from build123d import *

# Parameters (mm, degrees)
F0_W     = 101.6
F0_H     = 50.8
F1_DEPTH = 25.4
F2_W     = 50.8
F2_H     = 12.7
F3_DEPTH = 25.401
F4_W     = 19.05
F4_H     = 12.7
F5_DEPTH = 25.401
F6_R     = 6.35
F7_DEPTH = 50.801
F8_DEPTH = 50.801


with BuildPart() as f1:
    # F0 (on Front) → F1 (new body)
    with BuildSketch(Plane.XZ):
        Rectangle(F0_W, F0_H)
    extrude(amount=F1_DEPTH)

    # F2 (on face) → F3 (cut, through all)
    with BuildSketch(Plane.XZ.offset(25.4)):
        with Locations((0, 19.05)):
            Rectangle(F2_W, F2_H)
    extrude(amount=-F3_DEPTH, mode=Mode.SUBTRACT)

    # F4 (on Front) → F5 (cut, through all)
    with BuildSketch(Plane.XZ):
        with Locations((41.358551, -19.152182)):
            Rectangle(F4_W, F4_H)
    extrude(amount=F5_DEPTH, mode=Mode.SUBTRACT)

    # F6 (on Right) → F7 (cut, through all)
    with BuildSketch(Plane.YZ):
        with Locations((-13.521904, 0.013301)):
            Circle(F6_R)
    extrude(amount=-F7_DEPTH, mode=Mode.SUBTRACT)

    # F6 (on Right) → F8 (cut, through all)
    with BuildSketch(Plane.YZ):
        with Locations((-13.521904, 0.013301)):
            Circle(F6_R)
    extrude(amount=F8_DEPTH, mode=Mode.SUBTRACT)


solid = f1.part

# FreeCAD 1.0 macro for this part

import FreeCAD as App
import Part
import Sketcher
from FreeCAD import Vector
Q = App.Units.Quantity

doc = App.newDocument("Part")
body = doc.addObject("PartDesign::Body", "Body")

# Sketch on XZ plane
sketch1 = body.newObject("Sketcher::SketchObject", "Sketch")
sketch1.AttachmentSupport = (doc.getObject("XZ_Plane"), [""])
sketch1.MapMode = "FlatFace"
sketch1.addGeometry(Part.LineSegment(Vector(-51, 25, 0), Vector(-51, -25, 0)), False)
sketch1.addGeometry(Part.LineSegment(Vector(-51, -25, 0), Vector(51, -25, 0)), False)
sketch1.addGeometry(Part.LineSegment(Vector(51, -25, 0), Vector(51, 25, 0)), False)
sketch1.addGeometry(Part.LineSegment(Vector(51, 25, 0), Vector(-51, 25, 0)), False)
sketch1.addConstraint(Sketcher.Constraint("Coincident", 0, 2, 1, 1))
sketch1.addConstraint(Sketcher.Constraint("Coincident", 1, 2, 2, 1))
sketch1.addConstraint(Sketcher.Constraint("Coincident", 2, 2, 3, 1))
sketch1.addConstraint(Sketcher.Constraint("Coincident", 3, 2, 0, 1))
sketch1.addConstraint(Sketcher.Constraint("Vertical", 0))
sketch1.addConstraint(Sketcher.Constraint("Horizontal", 1))
sketch1.addConstraint(Sketcher.Constraint("Vertical", 2))
sketch1.addConstraint(Sketcher.Constraint("Horizontal", 3))
sketch1.addConstraint(Sketcher.Constraint("Symmetric", 0, 2, 2, 2, -1, 1))
sketch1.addConstraint(Sketcher.Constraint("DistanceX", 1, 1, 1, 2, Q("4 in")))
sketch1.addConstraint(Sketcher.Constraint("DistanceY", 0, 2, 0, 1, Q("2 in")))
pad1 = body.newObject("PartDesign::Pad", "Pad")
pad1.Profile = sketch1
pad1.Length = Q("1 in")

# Sketch on XZ plane
sketch2 = body.newObject("Sketcher::SketchObject", "Sketch001")
sketch2.AttachmentSupport = (doc.getObject("XZ_Plane"), [""])
sketch2.MapMode = "FlatFace"
sketch2.AttachmentOffset = App.Placement(Vector(0, 0, 1 * 25.4), App.Rotation())
sketch2.addGeometry(Part.LineSegment(Vector(-25, 25, 0), Vector(-25, 13, 0)), False)
sketch2.addGeometry(Part.LineSegment(Vector(-25, 13, 0), Vector(25, 13, 0)), False)
sketch2.addGeometry(Part.LineSegment(Vector(25, 13, 0), Vector(25, 25, 0)), False)
sketch2.addGeometry(Part.LineSegment(Vector(25, 25, 0), Vector(-25, 25, 0)), False)
sketch2.addConstraint(Sketcher.Constraint("Coincident", 0, 2, 1, 1))
sketch2.addConstraint(Sketcher.Constraint("Coincident", 1, 2, 2, 1))
sketch2.addConstraint(Sketcher.Constraint("Coincident", 2, 2, 3, 1))
sketch2.addConstraint(Sketcher.Constraint("Coincident", 3, 2, 0, 1))
sketch2.addConstraint(Sketcher.Constraint("Vertical", 0))
sketch2.addConstraint(Sketcher.Constraint("Horizontal", 1))
sketch2.addConstraint(Sketcher.Constraint("Vertical", 2))
sketch2.addConstraint(Sketcher.Constraint("Horizontal", 3))
sketch2.addConstraint(Sketcher.Constraint("DistanceX", 1, 1, 1, 2, Q("2 in")))
sketch2.addConstraint(Sketcher.Constraint("DistanceY", 0, 2, 0, 1, Q("0.5 in")))
sketch2.addConstraint(Sketcher.Constraint("DistanceX", 0, 2, -1, 1, Q("1 in")))
sketch2.addConstraint(Sketcher.Constraint("DistanceY", -1, 1, 2, 2, Q("1 in")))
pocket1 = body.newObject("PartDesign::Pocket", "Pocket")
pocket1.Profile = sketch2
pocket1.Type = "ThroughAll"

# Sketch on XZ plane
sketch3 = body.newObject("Sketcher::SketchObject", "Sketch002")
sketch3.AttachmentSupport = (doc.getObject("XZ_Plane"), [""])
sketch3.MapMode = "FlatFace"
sketch3.addGeometry(Part.LineSegment(Vector(32, -13, 0), Vector(32, -26, 0)), False)
sketch3.addGeometry(Part.LineSegment(Vector(32, -26, 0), Vector(51, -26, 0)), False)
sketch3.addGeometry(Part.LineSegment(Vector(51, -26, 0), Vector(51, -13, 0)), False)
sketch3.addGeometry(Part.LineSegment(Vector(51, -13, 0), Vector(32, -13, 0)), False)
sketch3.addConstraint(Sketcher.Constraint("Coincident", 0, 2, 1, 1))
sketch3.addConstraint(Sketcher.Constraint("Coincident", 1, 2, 2, 1))
sketch3.addConstraint(Sketcher.Constraint("Coincident", 2, 2, 3, 1))
sketch3.addConstraint(Sketcher.Constraint("Coincident", 3, 2, 0, 1))
sketch3.addConstraint(Sketcher.Constraint("Vertical", 0))
sketch3.addConstraint(Sketcher.Constraint("Horizontal", 1))
sketch3.addConstraint(Sketcher.Constraint("Vertical", 2))
sketch3.addConstraint(Sketcher.Constraint("Horizontal", 3))
sketch3.addConstraint(Sketcher.Constraint("DistanceY", 0, 2, 0, 1, Q("0.5 in")))
sketch3.addConstraint(Sketcher.Constraint("DistanceX", 1, 1, 1, 2, Q("0.75 in")))
sketch3.addConstraint(Sketcher.Constraint("DistanceX", -1, 1, 0, 2, 31.833551))
sketch3.addConstraint(Sketcher.Constraint("DistanceY", 0, 2, -1, 1, 25.502182))
pocket2 = body.newObject("PartDesign::Pocket", "Pocket001")
pocket2.Profile = sketch3
pocket2.Type = "ThroughAll"
pocket2.Reversed = True

# Sketch on YZ plane
sketch4 = body.newObject("Sketcher::SketchObject", "Sketch003")
sketch4.AttachmentSupport = (doc.getObject("YZ_Plane"), [""])
sketch4.MapMode = "FlatFace"
sketch4.addGeometry(Part.Circle(Vector(-14, 0, 0), Vector(0, 0, 1), 6), False)
sketch4.addConstraint(Sketcher.Constraint("Diameter", 0, Q("0.5 in")))
sketch4.addConstraint(Sketcher.Constraint("DistanceY", -1, 1, 0, 3, 0.013301))
sketch4.addConstraint(Sketcher.Constraint("DistanceX", 0, 3, -1, 1, 13.521904))
pocket3 = body.newObject("PartDesign::Pocket", "Pocket002")
pocket3.Profile = sketch4
pocket3.Type = "ThroughAll"

# Sketch on YZ plane
sketch5 = body.newObject("Sketcher::SketchObject", "Sketch004")
sketch5.AttachmentSupport = (doc.getObject("YZ_Plane"), [""])
sketch5.MapMode = "FlatFace"
sketch5.addGeometry(Part.Circle(Vector(-14, 0, 0), Vector(0, 0, 1), 6), False)
sketch5.addConstraint(Sketcher.Constraint("Diameter", 0, Q("0.5 in")))
sketch5.addConstraint(Sketcher.Constraint("DistanceY", -1, 1, 0, 3, 0.013301))
sketch5.addConstraint(Sketcher.Constraint("DistanceX", 0, 3, -1, 1, 13.521904))
pocket4 = body.newObject("PartDesign::Pocket", "Pocket003")
pocket4.Profile = sketch5
pocket4.Type = "ThroughAll"
pocket4.Reversed = True

doc.recompute()
